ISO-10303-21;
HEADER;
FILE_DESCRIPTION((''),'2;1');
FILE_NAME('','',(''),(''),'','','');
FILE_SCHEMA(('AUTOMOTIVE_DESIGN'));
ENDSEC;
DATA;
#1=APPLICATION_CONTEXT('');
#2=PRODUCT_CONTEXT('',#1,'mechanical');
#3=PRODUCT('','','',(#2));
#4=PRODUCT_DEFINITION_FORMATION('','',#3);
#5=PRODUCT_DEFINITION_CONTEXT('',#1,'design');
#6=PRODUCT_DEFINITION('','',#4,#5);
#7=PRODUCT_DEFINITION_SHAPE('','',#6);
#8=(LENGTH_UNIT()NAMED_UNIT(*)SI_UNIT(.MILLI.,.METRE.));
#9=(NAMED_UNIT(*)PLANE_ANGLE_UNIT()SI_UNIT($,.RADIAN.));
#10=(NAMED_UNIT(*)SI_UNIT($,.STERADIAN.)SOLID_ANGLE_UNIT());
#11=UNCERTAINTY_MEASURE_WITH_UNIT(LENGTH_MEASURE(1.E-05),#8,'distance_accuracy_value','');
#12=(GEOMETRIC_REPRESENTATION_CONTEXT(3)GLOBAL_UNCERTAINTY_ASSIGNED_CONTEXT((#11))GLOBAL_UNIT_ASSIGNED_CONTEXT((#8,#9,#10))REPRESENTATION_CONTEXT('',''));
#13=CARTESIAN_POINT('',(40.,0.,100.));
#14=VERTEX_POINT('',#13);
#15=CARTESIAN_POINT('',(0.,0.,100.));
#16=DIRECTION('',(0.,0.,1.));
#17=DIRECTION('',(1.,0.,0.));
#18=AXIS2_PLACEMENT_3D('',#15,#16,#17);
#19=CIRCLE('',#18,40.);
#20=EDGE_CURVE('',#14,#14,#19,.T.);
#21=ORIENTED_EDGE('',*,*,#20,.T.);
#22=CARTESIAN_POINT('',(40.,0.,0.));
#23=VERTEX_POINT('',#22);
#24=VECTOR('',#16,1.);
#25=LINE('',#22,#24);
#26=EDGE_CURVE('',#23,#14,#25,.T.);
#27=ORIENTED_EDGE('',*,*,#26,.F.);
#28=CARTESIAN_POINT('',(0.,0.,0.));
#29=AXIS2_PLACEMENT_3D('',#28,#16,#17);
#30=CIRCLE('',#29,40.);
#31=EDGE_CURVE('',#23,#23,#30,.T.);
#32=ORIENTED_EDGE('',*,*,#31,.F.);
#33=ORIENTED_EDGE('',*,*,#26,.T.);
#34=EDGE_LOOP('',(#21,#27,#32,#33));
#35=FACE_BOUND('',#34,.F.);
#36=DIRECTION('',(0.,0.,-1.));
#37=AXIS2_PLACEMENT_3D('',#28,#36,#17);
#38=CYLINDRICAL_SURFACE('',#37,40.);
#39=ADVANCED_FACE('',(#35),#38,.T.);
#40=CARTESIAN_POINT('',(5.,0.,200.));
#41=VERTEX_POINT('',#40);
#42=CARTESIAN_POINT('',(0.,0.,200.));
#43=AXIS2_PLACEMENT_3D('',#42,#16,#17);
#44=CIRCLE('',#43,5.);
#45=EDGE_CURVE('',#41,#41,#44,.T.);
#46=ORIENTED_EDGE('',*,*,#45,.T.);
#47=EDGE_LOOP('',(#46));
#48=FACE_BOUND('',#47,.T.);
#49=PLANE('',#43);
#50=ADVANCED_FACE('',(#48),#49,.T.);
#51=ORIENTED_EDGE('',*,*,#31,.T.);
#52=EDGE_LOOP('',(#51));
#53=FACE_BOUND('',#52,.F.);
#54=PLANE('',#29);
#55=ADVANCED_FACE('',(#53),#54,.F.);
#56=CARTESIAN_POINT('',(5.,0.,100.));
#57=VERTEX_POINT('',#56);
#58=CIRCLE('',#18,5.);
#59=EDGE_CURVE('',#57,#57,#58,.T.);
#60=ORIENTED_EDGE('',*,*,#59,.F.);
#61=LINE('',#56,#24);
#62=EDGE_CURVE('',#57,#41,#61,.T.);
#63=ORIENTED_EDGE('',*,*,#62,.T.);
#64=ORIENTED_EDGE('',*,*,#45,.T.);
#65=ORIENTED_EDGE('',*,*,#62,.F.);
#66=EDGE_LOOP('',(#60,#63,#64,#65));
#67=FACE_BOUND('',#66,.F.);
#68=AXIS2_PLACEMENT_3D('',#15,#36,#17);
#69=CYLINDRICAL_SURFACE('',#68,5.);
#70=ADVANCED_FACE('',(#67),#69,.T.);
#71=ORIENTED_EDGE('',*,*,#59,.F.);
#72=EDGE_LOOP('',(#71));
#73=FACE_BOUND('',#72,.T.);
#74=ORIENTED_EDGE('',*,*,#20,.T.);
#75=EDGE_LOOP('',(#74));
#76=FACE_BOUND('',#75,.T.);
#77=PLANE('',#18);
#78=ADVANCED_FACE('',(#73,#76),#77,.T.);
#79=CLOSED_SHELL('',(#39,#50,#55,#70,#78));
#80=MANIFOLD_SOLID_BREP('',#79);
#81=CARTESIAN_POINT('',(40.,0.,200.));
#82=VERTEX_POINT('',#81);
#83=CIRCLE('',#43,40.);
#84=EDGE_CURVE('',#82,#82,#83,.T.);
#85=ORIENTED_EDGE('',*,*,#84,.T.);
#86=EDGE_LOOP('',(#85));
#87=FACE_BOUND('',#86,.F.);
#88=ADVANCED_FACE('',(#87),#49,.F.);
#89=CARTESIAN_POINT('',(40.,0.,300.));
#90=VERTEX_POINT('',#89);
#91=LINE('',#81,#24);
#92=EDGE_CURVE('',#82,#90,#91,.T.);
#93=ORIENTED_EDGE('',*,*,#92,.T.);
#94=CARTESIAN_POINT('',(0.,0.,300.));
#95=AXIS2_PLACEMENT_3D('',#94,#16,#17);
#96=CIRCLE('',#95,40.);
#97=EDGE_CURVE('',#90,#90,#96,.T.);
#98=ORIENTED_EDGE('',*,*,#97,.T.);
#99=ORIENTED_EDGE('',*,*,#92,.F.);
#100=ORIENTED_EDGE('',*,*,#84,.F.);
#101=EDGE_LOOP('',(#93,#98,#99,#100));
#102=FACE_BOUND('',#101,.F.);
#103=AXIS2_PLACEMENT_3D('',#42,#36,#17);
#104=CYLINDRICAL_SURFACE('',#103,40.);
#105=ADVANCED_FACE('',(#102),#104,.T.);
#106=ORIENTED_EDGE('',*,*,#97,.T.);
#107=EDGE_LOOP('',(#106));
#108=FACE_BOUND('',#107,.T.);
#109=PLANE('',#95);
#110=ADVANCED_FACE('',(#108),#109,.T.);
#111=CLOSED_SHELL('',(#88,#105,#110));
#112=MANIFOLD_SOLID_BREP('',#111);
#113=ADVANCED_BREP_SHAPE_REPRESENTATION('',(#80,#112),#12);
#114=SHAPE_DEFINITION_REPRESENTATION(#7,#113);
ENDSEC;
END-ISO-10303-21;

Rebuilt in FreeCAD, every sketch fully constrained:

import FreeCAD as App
import Part
import Sketcher

V = App.Vector

doc = App.newDocument("Part")
body = doc.addObject("PartDesign::Body", "Body")

# Sketch on XY plane
sketch1 = doc.addObject("Sketcher::SketchObject", "Sketch")
body.addObject(sketch1)
sketch1.AttachmentSupport = (doc.XY_Plane, [""])
sketch1.MapMode = "FlatFace"
sketch1.AttachmentOffset = App.Placement(V(0, 0, 200), App.Rotation())
sketch1.addGeometry(Part.Circle(V(0, 0, 0), V(0, 0, 1), 40), False)
sketch1.addConstraint([
    Sketcher.Constraint("Coincident", 0, 3, -1, 1),
    Sketcher.Constraint("Diameter", 0, 80.0),
])
pad1 = doc.addObject("PartDesign::Pad", "Pad")
body.addObject(pad1)
pad1.Profile = sketch1
pad1.Length = 100
body2 = doc.addObject("PartDesign::Body", "Body001")

# Sketch on XY plane
sketch2 = doc.addObject("Sketcher::SketchObject", "Sketch001")
body2.addObject(sketch2)
sketch2.AttachmentSupport = (doc.getObject("XY_Plane001"), [""])
sketch2.MapMode = "FlatFace"
sketch2.AttachmentOffset = App.Placement(V(0, 0, 100), App.Rotation())
sketch2.addGeometry(Part.Circle(V(0, 0, 0), V(0, 0, 1), 5), False)
sketch2.addConstraint([
    Sketcher.Constraint("Coincident", 0, 3, -1, 1),
    Sketcher.Constraint("Diameter", 0, 10.0),
])
pad2 = doc.addObject("PartDesign::Pad", "Pad001")
body2.addObject(pad2)
pad2.Profile = sketch2
pad2.Length = 100
body3 = doc.addObject("PartDesign::Body", "Body002")

# Sketch on XY plane
sketch3 = doc.addObject("Sketcher::SketchObject", "Sketch002")
body3.addObject(sketch3)
sketch3.AttachmentSupport = (doc.getObject("XY_Plane002"), [""])
sketch3.MapMode = "FlatFace"
sketch3.addGeometry(Part.Circle(V(0, 0, 0), V(0, 0, 1), 40), False)
sketch3.addConstraint([
    Sketcher.Constraint("Coincident", 0, 3, -1, 1),
    Sketcher.Constraint("Diameter", 0, 80.0),
])
pad3 = doc.addObject("PartDesign::Pad", "Pad002")
body3.addObject(pad3)
pad3.Profile = sketch3
pad3.Length = 100
doc.recompute()

boolean = doc.addObject("PartDesign::Boolean", "Boolean")
body3.addObject(boolean)
boolean.Type = "Fuse"
boolean.addObjects([body2])

doc.recompute()
